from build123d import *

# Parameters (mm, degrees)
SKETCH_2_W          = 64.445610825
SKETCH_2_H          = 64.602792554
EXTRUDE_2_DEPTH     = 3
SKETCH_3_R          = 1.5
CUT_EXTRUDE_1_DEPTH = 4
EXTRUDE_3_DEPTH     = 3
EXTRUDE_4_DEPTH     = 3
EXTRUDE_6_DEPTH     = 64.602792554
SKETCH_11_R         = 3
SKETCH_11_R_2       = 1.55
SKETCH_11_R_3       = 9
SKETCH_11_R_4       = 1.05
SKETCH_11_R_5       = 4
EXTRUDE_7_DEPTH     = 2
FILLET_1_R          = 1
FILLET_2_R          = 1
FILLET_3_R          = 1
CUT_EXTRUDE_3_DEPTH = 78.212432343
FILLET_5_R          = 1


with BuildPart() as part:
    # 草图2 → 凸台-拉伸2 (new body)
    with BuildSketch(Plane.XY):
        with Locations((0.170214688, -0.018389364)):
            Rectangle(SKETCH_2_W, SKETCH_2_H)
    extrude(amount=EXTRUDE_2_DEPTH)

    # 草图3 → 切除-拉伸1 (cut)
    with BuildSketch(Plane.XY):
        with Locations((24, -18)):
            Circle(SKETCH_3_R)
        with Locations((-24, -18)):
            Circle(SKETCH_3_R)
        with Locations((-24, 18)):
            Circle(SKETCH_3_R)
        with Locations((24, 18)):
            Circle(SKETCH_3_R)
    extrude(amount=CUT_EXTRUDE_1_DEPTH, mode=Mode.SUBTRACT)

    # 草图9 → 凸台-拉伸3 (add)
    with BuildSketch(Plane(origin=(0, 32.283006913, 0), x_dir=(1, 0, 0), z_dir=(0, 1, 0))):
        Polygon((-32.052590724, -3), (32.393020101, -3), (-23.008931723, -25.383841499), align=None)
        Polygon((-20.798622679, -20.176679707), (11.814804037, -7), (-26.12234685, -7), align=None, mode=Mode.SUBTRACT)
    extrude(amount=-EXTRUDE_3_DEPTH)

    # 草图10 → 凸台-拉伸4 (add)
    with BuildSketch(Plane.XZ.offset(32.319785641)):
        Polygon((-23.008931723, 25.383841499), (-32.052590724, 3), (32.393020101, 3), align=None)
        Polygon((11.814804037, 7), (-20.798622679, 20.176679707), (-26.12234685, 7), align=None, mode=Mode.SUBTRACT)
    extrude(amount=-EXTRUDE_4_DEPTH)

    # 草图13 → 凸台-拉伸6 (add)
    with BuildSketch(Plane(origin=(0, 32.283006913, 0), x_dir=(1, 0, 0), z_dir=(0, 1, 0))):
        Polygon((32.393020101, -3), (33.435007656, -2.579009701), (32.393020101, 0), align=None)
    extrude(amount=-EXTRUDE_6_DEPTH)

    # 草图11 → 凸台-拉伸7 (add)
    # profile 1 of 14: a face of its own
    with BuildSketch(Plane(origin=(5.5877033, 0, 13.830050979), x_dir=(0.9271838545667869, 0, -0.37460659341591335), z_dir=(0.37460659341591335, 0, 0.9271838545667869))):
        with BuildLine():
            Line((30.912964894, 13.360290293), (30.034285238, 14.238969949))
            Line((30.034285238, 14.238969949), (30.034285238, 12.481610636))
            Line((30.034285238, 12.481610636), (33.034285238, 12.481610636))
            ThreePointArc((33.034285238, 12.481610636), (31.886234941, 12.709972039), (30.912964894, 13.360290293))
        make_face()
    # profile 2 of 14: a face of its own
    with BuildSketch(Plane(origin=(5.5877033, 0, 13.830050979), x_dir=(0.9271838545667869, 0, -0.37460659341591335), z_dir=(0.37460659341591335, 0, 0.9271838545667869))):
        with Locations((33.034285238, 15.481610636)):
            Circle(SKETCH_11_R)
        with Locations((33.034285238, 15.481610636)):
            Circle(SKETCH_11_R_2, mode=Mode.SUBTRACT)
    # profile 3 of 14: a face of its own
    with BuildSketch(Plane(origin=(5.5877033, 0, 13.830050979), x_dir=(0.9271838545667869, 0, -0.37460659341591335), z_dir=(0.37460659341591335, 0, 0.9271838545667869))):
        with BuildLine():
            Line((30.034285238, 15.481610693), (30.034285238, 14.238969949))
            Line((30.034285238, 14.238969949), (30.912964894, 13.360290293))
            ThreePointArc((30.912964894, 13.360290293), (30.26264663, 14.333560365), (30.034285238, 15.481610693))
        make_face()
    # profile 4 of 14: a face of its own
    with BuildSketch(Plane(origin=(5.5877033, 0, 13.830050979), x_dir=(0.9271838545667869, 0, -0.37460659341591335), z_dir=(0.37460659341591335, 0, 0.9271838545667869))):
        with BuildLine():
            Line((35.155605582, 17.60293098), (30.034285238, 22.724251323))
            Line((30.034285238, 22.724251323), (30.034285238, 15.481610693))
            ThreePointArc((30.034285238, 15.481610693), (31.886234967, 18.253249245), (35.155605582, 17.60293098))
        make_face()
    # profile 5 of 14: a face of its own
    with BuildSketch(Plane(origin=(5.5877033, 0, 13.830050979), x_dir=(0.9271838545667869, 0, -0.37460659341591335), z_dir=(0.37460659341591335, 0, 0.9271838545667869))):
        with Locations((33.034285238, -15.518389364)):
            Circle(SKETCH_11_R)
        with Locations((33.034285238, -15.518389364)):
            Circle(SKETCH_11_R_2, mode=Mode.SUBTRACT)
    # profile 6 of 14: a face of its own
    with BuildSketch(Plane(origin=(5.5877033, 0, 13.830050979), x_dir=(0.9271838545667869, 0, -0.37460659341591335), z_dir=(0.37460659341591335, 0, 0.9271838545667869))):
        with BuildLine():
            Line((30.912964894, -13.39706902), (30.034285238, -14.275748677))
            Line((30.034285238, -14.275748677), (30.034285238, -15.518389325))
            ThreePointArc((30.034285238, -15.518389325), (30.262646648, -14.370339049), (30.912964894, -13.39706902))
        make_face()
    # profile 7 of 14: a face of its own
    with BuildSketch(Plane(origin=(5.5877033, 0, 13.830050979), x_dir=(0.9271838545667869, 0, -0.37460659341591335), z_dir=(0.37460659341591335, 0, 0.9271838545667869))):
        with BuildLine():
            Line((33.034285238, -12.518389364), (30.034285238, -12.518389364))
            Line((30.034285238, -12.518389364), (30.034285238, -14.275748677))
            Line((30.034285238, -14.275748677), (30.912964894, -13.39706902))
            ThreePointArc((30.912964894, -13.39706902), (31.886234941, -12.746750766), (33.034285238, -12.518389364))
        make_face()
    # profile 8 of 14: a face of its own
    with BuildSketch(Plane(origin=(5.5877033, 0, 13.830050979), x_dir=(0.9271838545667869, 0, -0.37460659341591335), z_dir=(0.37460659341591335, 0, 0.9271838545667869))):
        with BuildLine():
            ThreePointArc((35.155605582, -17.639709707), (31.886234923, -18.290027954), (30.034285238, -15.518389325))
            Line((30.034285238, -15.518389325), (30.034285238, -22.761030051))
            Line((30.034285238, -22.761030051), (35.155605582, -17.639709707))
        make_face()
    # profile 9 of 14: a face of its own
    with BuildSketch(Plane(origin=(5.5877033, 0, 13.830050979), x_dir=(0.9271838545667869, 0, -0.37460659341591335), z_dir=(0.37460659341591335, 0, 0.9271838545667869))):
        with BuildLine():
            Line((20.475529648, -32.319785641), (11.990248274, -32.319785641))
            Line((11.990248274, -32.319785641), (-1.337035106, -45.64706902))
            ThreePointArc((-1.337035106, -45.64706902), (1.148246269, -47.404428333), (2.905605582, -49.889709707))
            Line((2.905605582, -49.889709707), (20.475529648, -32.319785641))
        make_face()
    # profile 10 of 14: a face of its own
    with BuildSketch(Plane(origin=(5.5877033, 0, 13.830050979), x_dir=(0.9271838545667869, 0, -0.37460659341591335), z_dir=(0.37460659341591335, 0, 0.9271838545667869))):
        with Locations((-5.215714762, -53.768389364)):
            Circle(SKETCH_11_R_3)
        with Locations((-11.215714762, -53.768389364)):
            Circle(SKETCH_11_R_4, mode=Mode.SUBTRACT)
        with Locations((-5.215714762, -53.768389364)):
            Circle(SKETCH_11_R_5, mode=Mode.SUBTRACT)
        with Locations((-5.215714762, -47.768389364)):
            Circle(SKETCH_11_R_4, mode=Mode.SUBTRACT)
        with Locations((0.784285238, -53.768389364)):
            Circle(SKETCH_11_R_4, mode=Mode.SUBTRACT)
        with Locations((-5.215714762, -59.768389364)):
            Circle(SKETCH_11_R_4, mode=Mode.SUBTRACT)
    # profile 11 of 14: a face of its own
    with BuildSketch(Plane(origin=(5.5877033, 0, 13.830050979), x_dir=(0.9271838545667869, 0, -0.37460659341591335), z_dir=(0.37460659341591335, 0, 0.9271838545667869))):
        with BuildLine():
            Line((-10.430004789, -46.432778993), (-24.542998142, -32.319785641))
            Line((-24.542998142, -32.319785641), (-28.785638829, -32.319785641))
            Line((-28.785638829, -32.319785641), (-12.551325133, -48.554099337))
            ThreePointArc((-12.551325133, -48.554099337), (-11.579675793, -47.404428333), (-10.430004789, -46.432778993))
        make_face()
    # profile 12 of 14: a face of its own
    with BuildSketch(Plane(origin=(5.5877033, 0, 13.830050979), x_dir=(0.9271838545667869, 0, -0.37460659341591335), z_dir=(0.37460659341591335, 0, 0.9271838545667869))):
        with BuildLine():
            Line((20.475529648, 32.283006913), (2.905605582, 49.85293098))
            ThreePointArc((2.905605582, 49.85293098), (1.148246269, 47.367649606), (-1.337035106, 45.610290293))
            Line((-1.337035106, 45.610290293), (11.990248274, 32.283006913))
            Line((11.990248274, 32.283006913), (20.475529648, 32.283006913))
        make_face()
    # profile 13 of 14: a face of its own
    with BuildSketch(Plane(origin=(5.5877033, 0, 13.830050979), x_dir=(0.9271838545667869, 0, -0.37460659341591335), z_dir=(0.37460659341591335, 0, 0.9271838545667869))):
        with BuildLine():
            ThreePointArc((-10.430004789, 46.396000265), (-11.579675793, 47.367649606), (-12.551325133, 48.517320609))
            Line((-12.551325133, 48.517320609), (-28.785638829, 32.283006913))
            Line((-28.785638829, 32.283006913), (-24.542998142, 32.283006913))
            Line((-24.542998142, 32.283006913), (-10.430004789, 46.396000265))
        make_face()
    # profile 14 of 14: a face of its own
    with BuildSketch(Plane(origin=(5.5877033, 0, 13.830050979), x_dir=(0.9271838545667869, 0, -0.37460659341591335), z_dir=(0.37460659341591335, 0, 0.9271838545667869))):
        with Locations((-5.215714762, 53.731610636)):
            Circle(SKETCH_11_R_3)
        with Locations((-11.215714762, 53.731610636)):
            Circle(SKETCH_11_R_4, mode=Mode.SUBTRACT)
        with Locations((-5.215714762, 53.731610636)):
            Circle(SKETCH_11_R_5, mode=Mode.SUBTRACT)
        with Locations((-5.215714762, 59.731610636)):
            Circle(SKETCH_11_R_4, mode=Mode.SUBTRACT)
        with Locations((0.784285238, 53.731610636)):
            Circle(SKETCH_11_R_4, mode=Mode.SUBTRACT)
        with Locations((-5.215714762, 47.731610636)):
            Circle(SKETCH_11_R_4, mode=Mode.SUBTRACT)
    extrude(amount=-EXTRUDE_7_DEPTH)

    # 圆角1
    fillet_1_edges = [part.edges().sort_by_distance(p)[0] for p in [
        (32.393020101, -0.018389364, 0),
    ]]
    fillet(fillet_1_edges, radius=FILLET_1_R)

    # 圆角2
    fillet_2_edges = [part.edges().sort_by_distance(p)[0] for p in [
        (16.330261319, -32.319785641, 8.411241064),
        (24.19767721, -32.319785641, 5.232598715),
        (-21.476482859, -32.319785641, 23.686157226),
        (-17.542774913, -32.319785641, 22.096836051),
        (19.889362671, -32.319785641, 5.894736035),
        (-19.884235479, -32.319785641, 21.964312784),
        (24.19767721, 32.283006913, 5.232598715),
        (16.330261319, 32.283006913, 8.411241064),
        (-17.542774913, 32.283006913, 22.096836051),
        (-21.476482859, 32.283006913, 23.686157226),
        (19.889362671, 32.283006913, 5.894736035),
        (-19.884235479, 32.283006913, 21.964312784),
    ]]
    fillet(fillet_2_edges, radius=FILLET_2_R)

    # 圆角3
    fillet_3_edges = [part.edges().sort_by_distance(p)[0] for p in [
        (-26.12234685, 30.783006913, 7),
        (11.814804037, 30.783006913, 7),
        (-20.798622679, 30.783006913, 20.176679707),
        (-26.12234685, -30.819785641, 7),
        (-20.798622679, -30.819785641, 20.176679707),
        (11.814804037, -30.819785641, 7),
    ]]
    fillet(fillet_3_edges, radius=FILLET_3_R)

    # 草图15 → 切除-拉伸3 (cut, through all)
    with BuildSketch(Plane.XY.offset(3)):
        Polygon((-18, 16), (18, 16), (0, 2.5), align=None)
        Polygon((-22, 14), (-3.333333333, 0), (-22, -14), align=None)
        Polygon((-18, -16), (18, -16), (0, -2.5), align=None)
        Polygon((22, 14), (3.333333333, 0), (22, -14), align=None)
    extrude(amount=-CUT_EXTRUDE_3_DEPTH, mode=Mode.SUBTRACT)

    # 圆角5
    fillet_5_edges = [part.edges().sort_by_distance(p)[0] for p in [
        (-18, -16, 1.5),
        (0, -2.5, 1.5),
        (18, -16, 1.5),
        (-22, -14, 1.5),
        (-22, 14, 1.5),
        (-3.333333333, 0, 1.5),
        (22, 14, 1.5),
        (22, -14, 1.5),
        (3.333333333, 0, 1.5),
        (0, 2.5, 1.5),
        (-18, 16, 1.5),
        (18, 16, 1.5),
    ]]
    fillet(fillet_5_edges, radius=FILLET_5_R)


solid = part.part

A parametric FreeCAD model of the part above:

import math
import FreeCAD as App
import Part
import Sketcher
from FreeCAD import Vector
Q = App.Units.Quantity


def edges_at(feature, points):
    """Names of the edges that pass closest to the given points."""
    edges = feature.Shape.Edges
    near = lambda p: min(range(len(edges)), key=lambda i: edges[i].distToShape(Part.Vertex(*p))[0])
    return sorted({f"Edge{near(p) + 1}" for p in points})

doc = App.newDocument("Part")
body = doc.addObject("PartDesign::Body", "Body")

sketch1 = doc.addObject("Sketcher::SketchObject", "Sketch")
body.addObject(sketch1)
sketch1.AttachmentSupport = (doc.XY_Plane, [""])
sketch1.MapMode = "FlatFace"
sketch1.addGeometry([
    Part.LineSegment(Vector(-32, 32, 0), Vector(-32, -32, 0)),
    Part.LineSegment(Vector(-32, -32, 0), Vector(32, -32, 0)),
    Part.LineSegment(Vector(32, -32, 0), Vector(32, 32, 0)),
    Part.LineSegment(Vector(32, 32, 0), Vector(-32, 32, 0)),
], False)
sketch1.addConstraint([
    Sketcher.Constraint("Coincident", 0, 2, 1, 1),
    Sketcher.Constraint("Coincident", 1, 2, 2, 1),
    Sketcher.Constraint("Coincident", 2, 2, 3, 1),
    Sketcher.Constraint("Coincident", 3, 2, 0, 1),
    Sketcher.Constraint("Vertical", 0),
    Sketcher.Constraint("Horizontal", 1),
    Sketcher.Constraint("Vertical", 2),
    Sketcher.Constraint("Horizontal", 3),
    Sketcher.Constraint("DistanceX", 1, 1, 1, 2, 64.445611),
    Sketcher.Constraint("DistanceY", 0, 2, 0, 1, 64.602793),
    Sketcher.Constraint("DistanceX", 0, 2, -1, 1, 32.052591),
    Sketcher.Constraint("DistanceY", 0, 2, -1, 1, 32.319786),
])
pad1 = doc.addObject("PartDesign::Pad", "Pad")
body.addObject(pad1)
pad1.Profile = sketch1
pad1.Length = 3

sketch2 = doc.addObject("Sketcher::SketchObject", "Sketch001")
body.addObject(sketch2)
sketch2.AttachmentSupport = (doc.XY_Plane, [""])
sketch2.MapMode = "FlatFace"
sketch2.addGeometry([
    Part.Circle(Vector(24, -18, 0), Vector(0, 0, 1), 1.5),
    Part.Circle(Vector(-24, -18, 0), Vector(0, 0, 1), 1.5),
    Part.Circle(Vector(-24, 18, 0), Vector(0, 0, 1), 1.5),
    Part.Circle(Vector(24, 18, 0), Vector(0, 0, 1), 1.5),
], False)
sketch2.addConstraint([
    Sketcher.Constraint("Equal", 0, 1),
    Sketcher.Constraint("Equal", 1, 2),
    Sketcher.Constraint("Equal", 2, 3),
    Sketcher.Constraint("Symmetric", 0, 3, 2, 3, -1, 1),
    Sketcher.Constraint("Symmetric", 1, 3, 3, 3, -1, 1),
    Sketcher.Constraint("Symmetric", 0, 3, 1, 3, -2),
    Sketcher.Constraint("Diameter", 0, 3.0),
    Sketcher.Constraint("DistanceX", -1, 1, 0, 3, 24.0),
    Sketcher.Constraint("DistanceY", 0, 3, -1, 1, 18.0),
])
pocket1 = doc.addObject("PartDesign::Pocket", "Pocket")
body.addObject(pocket1)
pocket1.Profile = sketch2
pocket1.Length = 4
pocket1.Reversed = True

sketch3 = doc.addObject("Sketcher::SketchObject", "Sketch002")
body.addObject(sketch3)
sketch3.AttachmentSupport = (doc.XZ_Plane, [""])
sketch3.MapMode = "FlatFace"
sketch3.AttachmentOffset = App.Placement(Vector(0, 0, -32.283007), App.Rotation())
sketch3.addGeometry([
    Part.LineSegment(Vector(32, 3, 0), Vector(-32, 3, 0)),
    Part.LineSegment(Vector(-32, 3, 0), Vector(-23, 25, 0)),
    Part.LineSegment(Vector(-23, 25, 0), Vector(32, 3, 0)),
    Part.LineSegment(Vector(-21, 20, 0), Vector(-26, 7, 0)),
    Part.LineSegment(Vector(-26, 7, 0), Vector(12, 7, 0)),
    Part.LineSegment(Vector(12, 7, 0), Vector(-21, 20, 0)),
], False)
sketch3.addConstraint([
    Sketcher.Constraint("Coincident", 0, 2, 1, 1),
    Sketcher.Constraint("Coincident", 1, 2, 2, 1),
    Sketcher.Constraint("Coincident", 2, 2, 0, 1),
    Sketcher.Constraint("Coincident", 3, 2, 4, 1),
    Sketcher.Constraint("Coincident", 4, 2, 5, 1),
    Sketcher.Constraint("Coincident", 5, 2, 3, 1),
    Sketcher.Constraint("Horizontal", 0),
    Sketcher.Constraint("Horizontal", 4),
    Sketcher.Constraint("Perpendicular", 1, 2),
    Sketcher.Constraint("Perpendicular", 2, 3),
    Sketcher.Constraint("Perpendicular", 3, 5),
    Sketcher.Constraint("Angle", 1, Q("68 deg")),
    Sketcher.Constraint("DistanceY", -1, 1, 0, 2, 3.0),
    Sketcher.Constraint("DistanceY", -1, 1, 3, 2, 7.0),
    Sketcher.Constraint("DistanceX", 0, 2, 0, 1, 64.445611),
    Sketcher.Constraint("DistanceX", 4, 1, 4, 2, 37.937151),
    Sketcher.Constraint("DistanceX", 0, 2, -1, 1, 32.052591),
    Sketcher.Constraint("DistanceX", 1, 2, 5, 2, 2.210309),
])
pad2 = doc.addObject("PartDesign::Pad", "Pad001")
body.addObject(pad2)
pad2.Profile = sketch3
pad2.Length = 3

sketch4 = doc.addObject("Sketcher::SketchObject", "Sketch003")
body.addObject(sketch4)
sketch4.AttachmentSupport = (doc.XZ_Plane, [""])
sketch4.MapMode = "FlatFace"
sketch4.AttachmentOffset = App.Placement(Vector(0, 0, 32.319786), App.Rotation())
sketch4.addGeometry([
    Part.LineSegment(Vector(-23, 25, 0), Vector(-32, 3, 0)),
    Part.LineSegment(Vector(-32, 3, 0), Vector(32, 3, 0)),
    Part.LineSegment(Vector(32, 3, 0), Vector(-23, 25, 0)),
    Part.LineSegment(Vector(-21, 20, 0), Vector(12, 7, 0)),
    Part.LineSegment(Vector(12, 7, 0), Vector(-26, 7, 0)),
    Part.LineSegment(Vector(-26, 7, 0), Vector(-21, 20, 0)),
], False)
sketch4.addConstraint([
    Sketcher.Constraint("Coincident", 0, 2, 1, 1),
    Sketcher.Constraint("Coincident", 1, 2, 2, 1),
    Sketcher.Constraint("Coincident", 2, 2, 0, 1),
    Sketcher.Constraint("Coincident", 3, 2, 4, 1),
    Sketcher.Constraint("Coincident", 4, 2, 5, 1),
    Sketcher.Constraint("Coincident", 5, 2, 3, 1),
    Sketcher.Constraint("Horizontal", 1),
    Sketcher.Constraint("Horizontal", 4),
    Sketcher.Constraint("Perpendicular", 0, 2),
    Sketcher.Constraint("Parallel", 2, 3),
    Sketcher.Constraint("Perpendicular", 3, 5),
    Sketcher.Constraint("Angle", 0, Q("-112 deg")),
    Sketcher.Constraint("DistanceY", -1, 1, 0, 2, 3.0),
    Sketcher.Constraint("DistanceY", -1, 1, 3, 2, 7.0),
    Sketcher.Constraint("DistanceX", 1, 1, 1, 2, 64.445611),
    Sketcher.Constraint("DistanceX", 4, 2, 4, 1, 37.937151),
    Sketcher.Constraint("DistanceX", 0, 2, -1, 1, 32.052591),
    Sketcher.Constraint("DistanceX", 2, 2, 5, 2, 2.210309),
])
pad3 = doc.addObject("PartDesign::Pad", "Pad002")
body.addObject(pad3)
pad3.Profile = sketch4
pad3.Length = 3
pad3.Reversed = True

sketch5 = doc.addObject("Sketcher::SketchObject", "Sketch004")
body.addObject(sketch5)
sketch5.AttachmentSupport = (doc.XZ_Plane, [""])
sketch5.MapMode = "FlatFace"
sketch5.AttachmentOffset = App.Placement(Vector(0, 0, -32.283007), App.Rotation())
sketch5.addGeometry([
    Part.LineSegment(Vector(32.4, 3, 0), Vector(33.4, 2.6, 0)),
    Part.LineSegment(Vector(33.4, 2.6, 0), Vector(32.4, 0, 0)),
    Part.LineSegment(Vector(32.4, 0, 0), Vector(32.4, 3, 0)),
], False)
sketch5.addConstraint([
    Sketcher.Constraint("Coincident", 0, 2, 1, 1),
    Sketcher.Constraint("Coincident", 1, 2, 2, 1),
    Sketcher.Constraint("Coincident", 2, 2, 0, 1),
    Sketcher.Constraint("Vertical", 2),
    Sketcher.Constraint("PointOnObject", 1, 2, -1),
    Sketcher.Constraint("Perpendicular", 0, 1),
    Sketcher.Constraint("DistanceY", 2, 1, 2, 2, 3.0),
    Sketcher.Constraint("Angle", 0, Q("-22 deg")),
    Sketcher.Constraint("DistanceX", -1, 1, 1, 2, 32.39302),
])
pad4 = doc.addObject("PartDesign::Pad", "Pad003")
body.addObject(pad4)
pad4.Profile = sketch5
pad4.Length = 64.602793

sketch6 = doc.addObject("Sketcher::SketchObject", "Sketch005")
body.addObject(sketch6)
sketch6.Placement = App.Placement(Vector(5.587703, 0, 13.830051), App.Rotation(Vector(0.927183855, 0, -0.374606593), Vector(0, 1, 0), Vector(0.374606593, 0, 0.927183855), "ZXY"))
sketch6.addGeometry([
    Part.LineSegment(Vector(30, 12.5, 0), Vector(33, 12.5, 0)),
    Part.ArcOfCircle(Part.Circle(Vector(33, 15.5, 0), Vector(0, 0, 1), 3), math.radians(-90), math.radians(45)),
    Part.LineSegment(Vector(35.2, 17.6, 0), Vector(30, 22.7, 0)),
    Part.LineSegment(Vector(30, 22.7, 0), Vector(30, 12.5, 0)),
    Part.Circle(Vector(33, 15.5, 0), Vector(0, 0, 1), 1.6),
    Part.LineSegment(Vector(33, -12.5, 0), Vector(30, -12.5, 0)),
    Part.LineSegment(Vector(30, -12.5, 0), Vector(30, -22.8, 0)),
    Part.LineSegment(Vector(30, -22.8, 0), Vector(35.2, -17.6, 0)),
    Part.ArcOfCircle(Part.Circle(Vector(33, -15.5, 0), Vector(0, 0, 1), 3), math.radians(-45), math.radians(90)),
    Part.Circle(Vector(33, -15.5, 0), Vector(0, 0, 1), 1.6),
    Part.LineSegment(Vector(20.5, -32.3, 0), Vector(12, -32.3, 0)),
    Part.LineSegment(Vector(12, -32.3, 0), Vector(-1.3, -45.6, 0)),
    Part.ArcOfCircle(Part.Circle(Vector(-5.2, -53.8, 0), Vector(0, 0, 1), 9), math.radians(64), math.radians(125)),
    Part.LineSegment(Vector(-10.4, -46.4, 0), Vector(-24.5, -32.3, 0)),
    Part.LineSegment(Vector(-24.5, -32.3, 0), Vector(-28.8, -32.3, 0)),
    Part.LineSegment(Vector(-28.8, -32.3, 0), Vector(-12.6, -48.6, 0)),
    Part.ArcOfCircle(Part.Circle(Vector(-5.2, -53.8, 0), Vector(0, 0, 1), 9), math.radians(145), math.radians(386)),
    Part.LineSegment(Vector(2.9, -49.9, 0), Vector(20.5, -32.3, 0)),
    Part.Circle(Vector(0.8, -53.8, 0), Vector(0, 0, 1), 1.1),
    Part.Circle(Vector(-5.2, -59.8, 0), Vector(0, 0, 1), 1.1),
    Part.Circle(Vector(-11.2, -53.8, 0), Vector(0, 0, 1), 1.1),
    Part.Circle(Vector(-5.2, -53.8, 0), Vector(0, 0, 1), 4),
    Part.Circle(Vector(-5.2, -47.8, 0), Vector(0, 0, 1), 1.1),
    Part.LineSegment(Vector(20.5, 32.3, 0), Vector(2.9, 49.9, 0)),
    Part.ArcOfCircle(Part.Circle(Vector(-5.2, 53.7, 0), Vector(0, 0, 1), 9), math.radians(-26), math.radians(215)),
    Part.LineSegment(Vector(-12.6, 48.5, 0), Vector(-28.8, 32.3, 0)),
    Part.LineSegment(Vector(-28.8, 32.3, 0), Vector(-24.5, 32.3, 0)),
    Part.LineSegment(Vector(-24.5, 32.3, 0), Vector(-10.4, 46.4, 0)),
    Part.ArcOfCircle(Part.Circle(Vector(-5.2, 53.7, 0), Vector(0, 0, 1), 9), math.radians(-125), math.radians(-64)),
    Part.LineSegment(Vector(-1.3, 45.6, 0), Vector(12, 32.3, 0)),
    Part.LineSegment(Vector(12, 32.3, 0), Vector(20.5, 32.3, 0)),
    Part.Circle(Vector(0.8, 53.7, 0), Vector(0, 0, 1), 1.1),
    Part.Circle(Vector(-5.2, 47.7, 0), Vector(0, 0, 1), 1.1),
    Part.Circle(Vector(-11.2, 53.7, 0), Vector(0, 0, 1), 1.1),
    Part.Circle(Vector(-5.2, 53.7, 0), Vector(0, 0, 1), 4),
    Part.Circle(Vector(-5.2, 59.7, 0), Vector(0, 0, 1), 1.1),
], False)
sketch6.addConstraint([
    Sketcher.Constraint("Tangent", 0, 2, 1, 1),
    Sketcher.Constraint("Tangent", 1, 2, 2, 1),
    Sketcher.Constraint("Coincident", 2, 2, 3, 1),
    Sketcher.Constraint("Coincident", 3, 2, 0, 1),
    Sketcher.Constraint("Coincident", 5, 2, 6, 1),
    Sketcher.Constraint("Coincident", 6, 2, 7, 1),
    Sketcher.Constraint("Tangent", 7, 2, 8, 1),
    Sketcher.Constraint("Tangent", 8, 2, 5, 1),
    Sketcher.Constraint("Coincident", 10, 2, 11, 1),
    Sketcher.Constraint("Coincident", 11, 2, 12, 1),
    Sketcher.Constraint("Coincident", 12, 2, 13, 1),
    Sketcher.Constraint("Coincident", 13, 2, 14, 1),
    Sketcher.Constraint("Coincident", 14, 2, 15, 1),
    Sketcher.Constraint("Coincident", 15, 2, 16, 1),
    Sketcher.Constraint("Coincident", 16, 2, 17, 1),
    Sketcher.Constraint("Coincident", 17, 2, 10, 1),
    Sketcher.Constraint("Coincident", 23, 2, 24, 1),
    Sketcher.Constraint("Coincident", 24, 2, 25, 1),
    Sketcher.Constraint("Coincident", 25, 2, 26, 1),
    Sketcher.Constraint("Coincident", 26, 2, 27, 1),
    Sketcher.Constraint("Coincident", 27, 2, 28, 1),
    Sketcher.Constraint("Coincident", 28, 2, 29, 1),
    Sketcher.Constraint("Coincident", 29, 2, 30, 1),
    Sketcher.Constraint("Coincident", 30, 2, 23, 1),
    Sketcher.Constraint("Horizontal", 0),
    Sketcher.Constraint("Vertical", 3),
    Sketcher.Constraint("Horizontal", 5),
    Sketcher.Constraint("Vertical", 6),
    Sketcher.Constraint("Horizontal", 10),
    Sketcher.Constraint("Horizontal", 14),
    Sketcher.Constraint("Horizontal", 26),
    Sketcher.Constraint("Horizontal", 30),
    Sketcher.Constraint("Coincident", 4, 3, 1, 3),
    Sketcher.Constraint("Coincident", 9, 3, 8, 3),
    Sketcher.Constraint("Coincident", 16, 3, 12, 3),
    Sketcher.Constraint("Coincident", 21, 3, 12, 3),
    Sketcher.Constraint("Coincident", 28, 3, 24, 3),
    Sketcher.Constraint("Coincident", 34, 3, 24, 3),
    Sketcher.Constraint("Equal", 1, 8),
    Sketcher.Constraint("Equal", 4, 9),
    Sketcher.Constraint("Equal", 12, 16),
    Sketcher.Constraint("Equal", 18, 19),
    Sketcher.Constraint("Equal", 19, 20),
    Sketcher.Constraint("Equal", 20, 22),
    Sketcher.Constraint("Equal", 16, 24),
    Sketcher.Constraint("Equal", 24, 28),
    Sketcher.Constraint("Equal", 22, 31),
    Sketcher.Constraint("Equal", 31, 32),
    Sketcher.Constraint("Equal", 32, 33),
    Sketcher.Constraint("Equal", 21, 34),
    Sketcher.Constraint("Equal", 33, 35),
    Sketcher.Constraint("Perpendicular", 2, 7),
    Sketcher.Constraint("Parallel", 7, 11),
    Sketcher.Constraint("Perpendicular", 11, 13),
    Sketcher.Constraint("Parallel", 13, 15),
    Sketcher.Constraint("Perpendicular", 15, 17),
    Sketcher.Constraint("Perpendicular", 17, 23),
    Sketcher.Constraint("Perpendicular", 23, 25),
    Sketcher.Constraint("Parallel", 25, 27),
    Sketcher.Constraint("Perpendicular", 27, 29),
    Sketcher.Constraint("Horizontal", 16, 3, 18, 3),
    Sketcher.Constraint("Horizontal", 18, 3, 20, 3),
    Sketcher.Constraint("Horizontal", 28, 3, 31, 3),
    Sketcher.Constraint("Horizontal", 31, 3, 33, 3),
    Sketcher.Constraint("Horizontal", 10, 2, 13, 2),
    Sketcher.Constraint("Horizontal", 26, 2, 29, 2),
    Sketcher.Constraint("Vertical", 4, 3, 8, 3),
    Sketcher.Constraint("Vertical", 16, 3, 19, 3),
    Sketcher.Constraint("Vertical", 21, 3, 22, 3),
    Sketcher.Constraint("Vertical", 22, 3, 24, 3),
    Sketcher.Constraint("Vertical", 18, 3, 31, 3),
    Sketcher.Constraint("Vertical", 28, 3, 32, 3),
    Sketcher.Constraint("Vertical", 20, 3, 33, 3),
    Sketcher.Constraint("Vertical", 34, 3, 35, 3),
    Sketcher.Constraint("Vertical", 3, 2, 5, 2),
    Sketcher.Constraint("Vertical", 1, 2, 7, 2),
    Sketcher.Constraint("Vertical", 16, 2, 23, 2),
    Sketcher.Constraint("Vertical", 15, 2, 24, 2),
    Sketcher.Constraint("Vertical", 14, 2, 25, 2),
    Sketcher.Constraint("Vertical", 13, 2, 26, 2),
    Sketcher.Constraint("Vertical", 11, 2, 28, 2),
    Sketcher.Constraint("Diameter", 21, 8.0),
    Sketcher.Constraint("Radius", 1, 3.0),
    Sketcher.Constraint("Radius", 12, 9.0),
    Sketcher.Constraint("Diameter", 4, 3.1),
    Sketcher.Constraint("Diameter", 18, 2.1),
    Sketcher.Constraint("DistanceX", 0, 1, 0, 2, 3.0),
    Sketcher.Constraint("DistanceY", 8, 3, 1, 3, 31.0),
    Sketcher.Constraint("DistanceX", 12, 3, 18, 3, 6.0),
    Sketcher.Constraint("DistanceY", 19, 3, 12, 3, 6.0),
    Sketcher.Constraint("DistanceX", 20, 3, 12, 3, 6.0),
    Sketcher.Constraint("DistanceY", 12, 3, 22, 3, 6.0),
    Sketcher.Constraint("DistanceY", 32, 3, 24, 3, 6.0),
    Sketcher.Constraint("DistanceY", 24, 3, 35, 3, 6.0),
    Sketcher.Constraint("DistanceY", 22, 3, 24, 3, 101.5),
    Sketcher.Constraint("DistanceX", 12, 3, 8, 3, 38.25),
    Sketcher.Constraint("DistanceY", 12, 3, 8, 3, 38.25),
    Sketcher.Constraint("DistanceX", 13, 2, -1, 1, 24.542998),
    Sketcher.Constraint("DistanceY", -1, 1, 27, 2, 46.396),
    Sketcher.Constraint("DistanceX", 10, 2, 10, 1, 8.485281),
    Sketcher.Constraint("DistanceX", 14, 2, 14, 1, 4.242641),
    Sketcher.Constraint("DistanceY", 15, 2, -1, 1, 48.554099),
    Sketcher.Constraint("DistanceX", -1, 1, 10, 2, 11.990248),
    Sketcher.Constraint("DistanceY", 11, 2, -1, 1, 45.647069),
])
pad5 = doc.addObject("PartDesign::Pad", "Pad004")
body.addObject(pad5)
pad5.Profile = sketch6
pad5.Length = 2
pad5.Reversed = True
doc.recompute()

fillet = doc.addObject("PartDesign::Fillet", "Fillet")
body.addObject(fillet)
fillet.Base = (pad5, edges_at(pad5, [(32.393, -0.018, 0)]))
fillet.Radius = 1
doc.recompute()

fillet2 = doc.addObject("PartDesign::Fillet", "Fillet001")
body.addObject(fillet2)
fillet2.Base = (fillet, edges_at(fillet, [
    (16.33, -32.32, 8.411),
    (24.198, -32.32, 5.233),
    (-21.476, -32.32, 23.686),
    (-17.543, -32.32, 22.097),
    (19.889, -32.32, 5.895),
    (-19.884, -32.32, 21.964),
    (24.198, 32.283, 5.233),
    (16.33, 32.283, 8.411),
    (-17.543, 32.283, 22.097),
    (-21.476, 32.283, 23.686),
    (19.889, 32.283, 5.895),
    (-19.884, 32.283, 21.964),
]))
fillet2.Radius = 1
doc.recompute()

fillet3 = doc.addObject("PartDesign::Fillet", "Fillet002")
body.addObject(fillet3)
fillet3.Base = (fillet2, edges_at(fillet2, [
    (-26.122, 30.783, 7),
    (11.815, 30.783, 7),
    (-20.799, 30.783, 20.177),
    (-26.122, -30.82, 7),
    (-20.799, -30.82, 20.177),
    (11.815, -30.82, 7),
]))
fillet3.Radius = 1

sketch7 = doc.addObject("Sketcher::SketchObject", "Sketch006")
body.addObject(sketch7)
sketch7.AttachmentSupport = (doc.XY_Plane, [""])
sketch7.MapMode = "FlatFace"
sketch7.AttachmentOffset = App.Placement(Vector(0, 0, 3), App.Rotation())
sketch7.addGeometry([
    Part.LineSegment(Vector(18, 16, 0), Vector(-18, 16, 0)),
    Part.LineSegment(Vector(-18, 16, 0), Vector(0, 2, 0)),
    Part.LineSegment(Vector(0, 2, 0), Vector(18, 16, 0)),
    Part.LineSegment(Vector(-3, 0, 0), Vector(-22, 14, 0)),
    Part.LineSegment(Vector(-22, 14, 0), Vector(-22, -14, 0)),
    Part.LineSegment(Vector(-22, -14, 0), Vector(-3, 0, 0)),
    Part.LineSegment(Vector(-18, -16, 0), Vector(18, -16, 0)),
    Part.LineSegment(Vector(18, -16, 0), Vector(0, -2, 0)),
    Part.LineSegment(Vector(0, -2, 0), Vector(-18, -16, 0)),
    Part.LineSegment(Vector(22, 14, 0), Vector(3, 0, 0)),
    Part.LineSegment(Vector(3, 0, 0), Vector(22, -14, 0)),
    Part.LineSegment(Vector(22, -14, 0), Vector(22, 14, 0)),
], False)
sketch7.addConstraint([
    Sketcher.Constraint("Coincident", 0, 2, 1, 1),
    Sketcher.Constraint("Coincident", 1, 2, 2, 1),
    Sketcher.Constraint("Coincident", 2, 2, 0, 1),
    Sketcher.Constraint("Coincident", 3, 2, 4, 1),
    Sketcher.Constraint("Coincident", 4, 2, 5, 1),
    Sketcher.Constraint("Coincident", 5, 2, 3, 1),
    Sketcher.Constraint("Coincident", 6, 2, 7, 1),
    Sketcher.Constraint("Coincident", 7, 2, 8, 1),
    Sketcher.Constraint("Coincident", 8, 2, 6, 1),
    Sketcher.Constraint("Coincident", 9, 2, 10, 1),
    Sketcher.Constraint("Coincident", 10, 2, 11, 1),
    Sketcher.Constraint("Coincident", 11, 2, 9, 1),
    Sketcher.Constraint("Horizontal", 0),
    Sketcher.Constraint("Vertical", 4),
    Sketcher.Constraint("Horizontal", 6),
    Sketcher.Constraint("Vertical", 11),
    Sketcher.Constraint("Symmetric", 0, 2, 6, 2, -1, 1),
    Sketcher.Constraint("Symmetric", 1, 2, 7, 2, -1, 1),
    Sketcher.Constraint("Symmetric", 5, 2, 9, 2, -1, 1),
    Sketcher.Constraint("Symmetric", 3, 2, 10, 2, -1, 1),
    Sketcher.Constraint("PointOnObject", 1, 2, -2),
    Sketcher.Constraint("PointOnObject", 5, 2, -1),
    Sketcher.Constraint("Parallel", 1, 3),
    Sketcher.Constraint("Parallel", 2, 5),
    Sketcher.Constraint("Parallel", 5, 8),
    Sketcher.Constraint("Parallel", 8, 9),
    Sketcher.Constraint("Horizontal", 4, 2, 10, 2),
    Sketcher.Constraint("DistanceX", 0, 2, 0, 1, 36.0),
    Sketcher.Constraint("DistanceY", 4, 2, 4, 1, 28.0),
    Sketcher.Constraint("DistanceY", -1, 1, 0, 2, 16.0),
    Sketcher.Constraint("DistanceX", 3, 2, -1, 1, 22.0),
    Sketcher.Constraint("DistanceY", 7, 2, 1, 2, 5.0),
])
pocket2 = doc.addObject("PartDesign::Pocket", "Pocket001")
body.addObject(pocket2)
pocket2.Profile = sketch7
pocket2.Type = "ThroughAll"
doc.recompute()

fillet4 = doc.addObject("PartDesign::Fillet", "Fillet003")
body.addObject(fillet4)
fillet4.Base = (pocket2, edges_at(pocket2, [
    (-18, -16, 1.5),
    (0, -2.5, 1.5),
    (18, -16, 1.5),
    (-22, -14, 1.5),
    (-22, 14, 1.5),
    (-3.333, 0, 1.5),
    (22, 14, 1.5),
    (22, -14, 1.5),
    (3.333, 0, 1.5),
    (0, 2.5, 1.5),
    (-18, 16, 1.5),
    (18, 16, 1.5),
]))
fillet4.Radius = 1

doc.recompute()
